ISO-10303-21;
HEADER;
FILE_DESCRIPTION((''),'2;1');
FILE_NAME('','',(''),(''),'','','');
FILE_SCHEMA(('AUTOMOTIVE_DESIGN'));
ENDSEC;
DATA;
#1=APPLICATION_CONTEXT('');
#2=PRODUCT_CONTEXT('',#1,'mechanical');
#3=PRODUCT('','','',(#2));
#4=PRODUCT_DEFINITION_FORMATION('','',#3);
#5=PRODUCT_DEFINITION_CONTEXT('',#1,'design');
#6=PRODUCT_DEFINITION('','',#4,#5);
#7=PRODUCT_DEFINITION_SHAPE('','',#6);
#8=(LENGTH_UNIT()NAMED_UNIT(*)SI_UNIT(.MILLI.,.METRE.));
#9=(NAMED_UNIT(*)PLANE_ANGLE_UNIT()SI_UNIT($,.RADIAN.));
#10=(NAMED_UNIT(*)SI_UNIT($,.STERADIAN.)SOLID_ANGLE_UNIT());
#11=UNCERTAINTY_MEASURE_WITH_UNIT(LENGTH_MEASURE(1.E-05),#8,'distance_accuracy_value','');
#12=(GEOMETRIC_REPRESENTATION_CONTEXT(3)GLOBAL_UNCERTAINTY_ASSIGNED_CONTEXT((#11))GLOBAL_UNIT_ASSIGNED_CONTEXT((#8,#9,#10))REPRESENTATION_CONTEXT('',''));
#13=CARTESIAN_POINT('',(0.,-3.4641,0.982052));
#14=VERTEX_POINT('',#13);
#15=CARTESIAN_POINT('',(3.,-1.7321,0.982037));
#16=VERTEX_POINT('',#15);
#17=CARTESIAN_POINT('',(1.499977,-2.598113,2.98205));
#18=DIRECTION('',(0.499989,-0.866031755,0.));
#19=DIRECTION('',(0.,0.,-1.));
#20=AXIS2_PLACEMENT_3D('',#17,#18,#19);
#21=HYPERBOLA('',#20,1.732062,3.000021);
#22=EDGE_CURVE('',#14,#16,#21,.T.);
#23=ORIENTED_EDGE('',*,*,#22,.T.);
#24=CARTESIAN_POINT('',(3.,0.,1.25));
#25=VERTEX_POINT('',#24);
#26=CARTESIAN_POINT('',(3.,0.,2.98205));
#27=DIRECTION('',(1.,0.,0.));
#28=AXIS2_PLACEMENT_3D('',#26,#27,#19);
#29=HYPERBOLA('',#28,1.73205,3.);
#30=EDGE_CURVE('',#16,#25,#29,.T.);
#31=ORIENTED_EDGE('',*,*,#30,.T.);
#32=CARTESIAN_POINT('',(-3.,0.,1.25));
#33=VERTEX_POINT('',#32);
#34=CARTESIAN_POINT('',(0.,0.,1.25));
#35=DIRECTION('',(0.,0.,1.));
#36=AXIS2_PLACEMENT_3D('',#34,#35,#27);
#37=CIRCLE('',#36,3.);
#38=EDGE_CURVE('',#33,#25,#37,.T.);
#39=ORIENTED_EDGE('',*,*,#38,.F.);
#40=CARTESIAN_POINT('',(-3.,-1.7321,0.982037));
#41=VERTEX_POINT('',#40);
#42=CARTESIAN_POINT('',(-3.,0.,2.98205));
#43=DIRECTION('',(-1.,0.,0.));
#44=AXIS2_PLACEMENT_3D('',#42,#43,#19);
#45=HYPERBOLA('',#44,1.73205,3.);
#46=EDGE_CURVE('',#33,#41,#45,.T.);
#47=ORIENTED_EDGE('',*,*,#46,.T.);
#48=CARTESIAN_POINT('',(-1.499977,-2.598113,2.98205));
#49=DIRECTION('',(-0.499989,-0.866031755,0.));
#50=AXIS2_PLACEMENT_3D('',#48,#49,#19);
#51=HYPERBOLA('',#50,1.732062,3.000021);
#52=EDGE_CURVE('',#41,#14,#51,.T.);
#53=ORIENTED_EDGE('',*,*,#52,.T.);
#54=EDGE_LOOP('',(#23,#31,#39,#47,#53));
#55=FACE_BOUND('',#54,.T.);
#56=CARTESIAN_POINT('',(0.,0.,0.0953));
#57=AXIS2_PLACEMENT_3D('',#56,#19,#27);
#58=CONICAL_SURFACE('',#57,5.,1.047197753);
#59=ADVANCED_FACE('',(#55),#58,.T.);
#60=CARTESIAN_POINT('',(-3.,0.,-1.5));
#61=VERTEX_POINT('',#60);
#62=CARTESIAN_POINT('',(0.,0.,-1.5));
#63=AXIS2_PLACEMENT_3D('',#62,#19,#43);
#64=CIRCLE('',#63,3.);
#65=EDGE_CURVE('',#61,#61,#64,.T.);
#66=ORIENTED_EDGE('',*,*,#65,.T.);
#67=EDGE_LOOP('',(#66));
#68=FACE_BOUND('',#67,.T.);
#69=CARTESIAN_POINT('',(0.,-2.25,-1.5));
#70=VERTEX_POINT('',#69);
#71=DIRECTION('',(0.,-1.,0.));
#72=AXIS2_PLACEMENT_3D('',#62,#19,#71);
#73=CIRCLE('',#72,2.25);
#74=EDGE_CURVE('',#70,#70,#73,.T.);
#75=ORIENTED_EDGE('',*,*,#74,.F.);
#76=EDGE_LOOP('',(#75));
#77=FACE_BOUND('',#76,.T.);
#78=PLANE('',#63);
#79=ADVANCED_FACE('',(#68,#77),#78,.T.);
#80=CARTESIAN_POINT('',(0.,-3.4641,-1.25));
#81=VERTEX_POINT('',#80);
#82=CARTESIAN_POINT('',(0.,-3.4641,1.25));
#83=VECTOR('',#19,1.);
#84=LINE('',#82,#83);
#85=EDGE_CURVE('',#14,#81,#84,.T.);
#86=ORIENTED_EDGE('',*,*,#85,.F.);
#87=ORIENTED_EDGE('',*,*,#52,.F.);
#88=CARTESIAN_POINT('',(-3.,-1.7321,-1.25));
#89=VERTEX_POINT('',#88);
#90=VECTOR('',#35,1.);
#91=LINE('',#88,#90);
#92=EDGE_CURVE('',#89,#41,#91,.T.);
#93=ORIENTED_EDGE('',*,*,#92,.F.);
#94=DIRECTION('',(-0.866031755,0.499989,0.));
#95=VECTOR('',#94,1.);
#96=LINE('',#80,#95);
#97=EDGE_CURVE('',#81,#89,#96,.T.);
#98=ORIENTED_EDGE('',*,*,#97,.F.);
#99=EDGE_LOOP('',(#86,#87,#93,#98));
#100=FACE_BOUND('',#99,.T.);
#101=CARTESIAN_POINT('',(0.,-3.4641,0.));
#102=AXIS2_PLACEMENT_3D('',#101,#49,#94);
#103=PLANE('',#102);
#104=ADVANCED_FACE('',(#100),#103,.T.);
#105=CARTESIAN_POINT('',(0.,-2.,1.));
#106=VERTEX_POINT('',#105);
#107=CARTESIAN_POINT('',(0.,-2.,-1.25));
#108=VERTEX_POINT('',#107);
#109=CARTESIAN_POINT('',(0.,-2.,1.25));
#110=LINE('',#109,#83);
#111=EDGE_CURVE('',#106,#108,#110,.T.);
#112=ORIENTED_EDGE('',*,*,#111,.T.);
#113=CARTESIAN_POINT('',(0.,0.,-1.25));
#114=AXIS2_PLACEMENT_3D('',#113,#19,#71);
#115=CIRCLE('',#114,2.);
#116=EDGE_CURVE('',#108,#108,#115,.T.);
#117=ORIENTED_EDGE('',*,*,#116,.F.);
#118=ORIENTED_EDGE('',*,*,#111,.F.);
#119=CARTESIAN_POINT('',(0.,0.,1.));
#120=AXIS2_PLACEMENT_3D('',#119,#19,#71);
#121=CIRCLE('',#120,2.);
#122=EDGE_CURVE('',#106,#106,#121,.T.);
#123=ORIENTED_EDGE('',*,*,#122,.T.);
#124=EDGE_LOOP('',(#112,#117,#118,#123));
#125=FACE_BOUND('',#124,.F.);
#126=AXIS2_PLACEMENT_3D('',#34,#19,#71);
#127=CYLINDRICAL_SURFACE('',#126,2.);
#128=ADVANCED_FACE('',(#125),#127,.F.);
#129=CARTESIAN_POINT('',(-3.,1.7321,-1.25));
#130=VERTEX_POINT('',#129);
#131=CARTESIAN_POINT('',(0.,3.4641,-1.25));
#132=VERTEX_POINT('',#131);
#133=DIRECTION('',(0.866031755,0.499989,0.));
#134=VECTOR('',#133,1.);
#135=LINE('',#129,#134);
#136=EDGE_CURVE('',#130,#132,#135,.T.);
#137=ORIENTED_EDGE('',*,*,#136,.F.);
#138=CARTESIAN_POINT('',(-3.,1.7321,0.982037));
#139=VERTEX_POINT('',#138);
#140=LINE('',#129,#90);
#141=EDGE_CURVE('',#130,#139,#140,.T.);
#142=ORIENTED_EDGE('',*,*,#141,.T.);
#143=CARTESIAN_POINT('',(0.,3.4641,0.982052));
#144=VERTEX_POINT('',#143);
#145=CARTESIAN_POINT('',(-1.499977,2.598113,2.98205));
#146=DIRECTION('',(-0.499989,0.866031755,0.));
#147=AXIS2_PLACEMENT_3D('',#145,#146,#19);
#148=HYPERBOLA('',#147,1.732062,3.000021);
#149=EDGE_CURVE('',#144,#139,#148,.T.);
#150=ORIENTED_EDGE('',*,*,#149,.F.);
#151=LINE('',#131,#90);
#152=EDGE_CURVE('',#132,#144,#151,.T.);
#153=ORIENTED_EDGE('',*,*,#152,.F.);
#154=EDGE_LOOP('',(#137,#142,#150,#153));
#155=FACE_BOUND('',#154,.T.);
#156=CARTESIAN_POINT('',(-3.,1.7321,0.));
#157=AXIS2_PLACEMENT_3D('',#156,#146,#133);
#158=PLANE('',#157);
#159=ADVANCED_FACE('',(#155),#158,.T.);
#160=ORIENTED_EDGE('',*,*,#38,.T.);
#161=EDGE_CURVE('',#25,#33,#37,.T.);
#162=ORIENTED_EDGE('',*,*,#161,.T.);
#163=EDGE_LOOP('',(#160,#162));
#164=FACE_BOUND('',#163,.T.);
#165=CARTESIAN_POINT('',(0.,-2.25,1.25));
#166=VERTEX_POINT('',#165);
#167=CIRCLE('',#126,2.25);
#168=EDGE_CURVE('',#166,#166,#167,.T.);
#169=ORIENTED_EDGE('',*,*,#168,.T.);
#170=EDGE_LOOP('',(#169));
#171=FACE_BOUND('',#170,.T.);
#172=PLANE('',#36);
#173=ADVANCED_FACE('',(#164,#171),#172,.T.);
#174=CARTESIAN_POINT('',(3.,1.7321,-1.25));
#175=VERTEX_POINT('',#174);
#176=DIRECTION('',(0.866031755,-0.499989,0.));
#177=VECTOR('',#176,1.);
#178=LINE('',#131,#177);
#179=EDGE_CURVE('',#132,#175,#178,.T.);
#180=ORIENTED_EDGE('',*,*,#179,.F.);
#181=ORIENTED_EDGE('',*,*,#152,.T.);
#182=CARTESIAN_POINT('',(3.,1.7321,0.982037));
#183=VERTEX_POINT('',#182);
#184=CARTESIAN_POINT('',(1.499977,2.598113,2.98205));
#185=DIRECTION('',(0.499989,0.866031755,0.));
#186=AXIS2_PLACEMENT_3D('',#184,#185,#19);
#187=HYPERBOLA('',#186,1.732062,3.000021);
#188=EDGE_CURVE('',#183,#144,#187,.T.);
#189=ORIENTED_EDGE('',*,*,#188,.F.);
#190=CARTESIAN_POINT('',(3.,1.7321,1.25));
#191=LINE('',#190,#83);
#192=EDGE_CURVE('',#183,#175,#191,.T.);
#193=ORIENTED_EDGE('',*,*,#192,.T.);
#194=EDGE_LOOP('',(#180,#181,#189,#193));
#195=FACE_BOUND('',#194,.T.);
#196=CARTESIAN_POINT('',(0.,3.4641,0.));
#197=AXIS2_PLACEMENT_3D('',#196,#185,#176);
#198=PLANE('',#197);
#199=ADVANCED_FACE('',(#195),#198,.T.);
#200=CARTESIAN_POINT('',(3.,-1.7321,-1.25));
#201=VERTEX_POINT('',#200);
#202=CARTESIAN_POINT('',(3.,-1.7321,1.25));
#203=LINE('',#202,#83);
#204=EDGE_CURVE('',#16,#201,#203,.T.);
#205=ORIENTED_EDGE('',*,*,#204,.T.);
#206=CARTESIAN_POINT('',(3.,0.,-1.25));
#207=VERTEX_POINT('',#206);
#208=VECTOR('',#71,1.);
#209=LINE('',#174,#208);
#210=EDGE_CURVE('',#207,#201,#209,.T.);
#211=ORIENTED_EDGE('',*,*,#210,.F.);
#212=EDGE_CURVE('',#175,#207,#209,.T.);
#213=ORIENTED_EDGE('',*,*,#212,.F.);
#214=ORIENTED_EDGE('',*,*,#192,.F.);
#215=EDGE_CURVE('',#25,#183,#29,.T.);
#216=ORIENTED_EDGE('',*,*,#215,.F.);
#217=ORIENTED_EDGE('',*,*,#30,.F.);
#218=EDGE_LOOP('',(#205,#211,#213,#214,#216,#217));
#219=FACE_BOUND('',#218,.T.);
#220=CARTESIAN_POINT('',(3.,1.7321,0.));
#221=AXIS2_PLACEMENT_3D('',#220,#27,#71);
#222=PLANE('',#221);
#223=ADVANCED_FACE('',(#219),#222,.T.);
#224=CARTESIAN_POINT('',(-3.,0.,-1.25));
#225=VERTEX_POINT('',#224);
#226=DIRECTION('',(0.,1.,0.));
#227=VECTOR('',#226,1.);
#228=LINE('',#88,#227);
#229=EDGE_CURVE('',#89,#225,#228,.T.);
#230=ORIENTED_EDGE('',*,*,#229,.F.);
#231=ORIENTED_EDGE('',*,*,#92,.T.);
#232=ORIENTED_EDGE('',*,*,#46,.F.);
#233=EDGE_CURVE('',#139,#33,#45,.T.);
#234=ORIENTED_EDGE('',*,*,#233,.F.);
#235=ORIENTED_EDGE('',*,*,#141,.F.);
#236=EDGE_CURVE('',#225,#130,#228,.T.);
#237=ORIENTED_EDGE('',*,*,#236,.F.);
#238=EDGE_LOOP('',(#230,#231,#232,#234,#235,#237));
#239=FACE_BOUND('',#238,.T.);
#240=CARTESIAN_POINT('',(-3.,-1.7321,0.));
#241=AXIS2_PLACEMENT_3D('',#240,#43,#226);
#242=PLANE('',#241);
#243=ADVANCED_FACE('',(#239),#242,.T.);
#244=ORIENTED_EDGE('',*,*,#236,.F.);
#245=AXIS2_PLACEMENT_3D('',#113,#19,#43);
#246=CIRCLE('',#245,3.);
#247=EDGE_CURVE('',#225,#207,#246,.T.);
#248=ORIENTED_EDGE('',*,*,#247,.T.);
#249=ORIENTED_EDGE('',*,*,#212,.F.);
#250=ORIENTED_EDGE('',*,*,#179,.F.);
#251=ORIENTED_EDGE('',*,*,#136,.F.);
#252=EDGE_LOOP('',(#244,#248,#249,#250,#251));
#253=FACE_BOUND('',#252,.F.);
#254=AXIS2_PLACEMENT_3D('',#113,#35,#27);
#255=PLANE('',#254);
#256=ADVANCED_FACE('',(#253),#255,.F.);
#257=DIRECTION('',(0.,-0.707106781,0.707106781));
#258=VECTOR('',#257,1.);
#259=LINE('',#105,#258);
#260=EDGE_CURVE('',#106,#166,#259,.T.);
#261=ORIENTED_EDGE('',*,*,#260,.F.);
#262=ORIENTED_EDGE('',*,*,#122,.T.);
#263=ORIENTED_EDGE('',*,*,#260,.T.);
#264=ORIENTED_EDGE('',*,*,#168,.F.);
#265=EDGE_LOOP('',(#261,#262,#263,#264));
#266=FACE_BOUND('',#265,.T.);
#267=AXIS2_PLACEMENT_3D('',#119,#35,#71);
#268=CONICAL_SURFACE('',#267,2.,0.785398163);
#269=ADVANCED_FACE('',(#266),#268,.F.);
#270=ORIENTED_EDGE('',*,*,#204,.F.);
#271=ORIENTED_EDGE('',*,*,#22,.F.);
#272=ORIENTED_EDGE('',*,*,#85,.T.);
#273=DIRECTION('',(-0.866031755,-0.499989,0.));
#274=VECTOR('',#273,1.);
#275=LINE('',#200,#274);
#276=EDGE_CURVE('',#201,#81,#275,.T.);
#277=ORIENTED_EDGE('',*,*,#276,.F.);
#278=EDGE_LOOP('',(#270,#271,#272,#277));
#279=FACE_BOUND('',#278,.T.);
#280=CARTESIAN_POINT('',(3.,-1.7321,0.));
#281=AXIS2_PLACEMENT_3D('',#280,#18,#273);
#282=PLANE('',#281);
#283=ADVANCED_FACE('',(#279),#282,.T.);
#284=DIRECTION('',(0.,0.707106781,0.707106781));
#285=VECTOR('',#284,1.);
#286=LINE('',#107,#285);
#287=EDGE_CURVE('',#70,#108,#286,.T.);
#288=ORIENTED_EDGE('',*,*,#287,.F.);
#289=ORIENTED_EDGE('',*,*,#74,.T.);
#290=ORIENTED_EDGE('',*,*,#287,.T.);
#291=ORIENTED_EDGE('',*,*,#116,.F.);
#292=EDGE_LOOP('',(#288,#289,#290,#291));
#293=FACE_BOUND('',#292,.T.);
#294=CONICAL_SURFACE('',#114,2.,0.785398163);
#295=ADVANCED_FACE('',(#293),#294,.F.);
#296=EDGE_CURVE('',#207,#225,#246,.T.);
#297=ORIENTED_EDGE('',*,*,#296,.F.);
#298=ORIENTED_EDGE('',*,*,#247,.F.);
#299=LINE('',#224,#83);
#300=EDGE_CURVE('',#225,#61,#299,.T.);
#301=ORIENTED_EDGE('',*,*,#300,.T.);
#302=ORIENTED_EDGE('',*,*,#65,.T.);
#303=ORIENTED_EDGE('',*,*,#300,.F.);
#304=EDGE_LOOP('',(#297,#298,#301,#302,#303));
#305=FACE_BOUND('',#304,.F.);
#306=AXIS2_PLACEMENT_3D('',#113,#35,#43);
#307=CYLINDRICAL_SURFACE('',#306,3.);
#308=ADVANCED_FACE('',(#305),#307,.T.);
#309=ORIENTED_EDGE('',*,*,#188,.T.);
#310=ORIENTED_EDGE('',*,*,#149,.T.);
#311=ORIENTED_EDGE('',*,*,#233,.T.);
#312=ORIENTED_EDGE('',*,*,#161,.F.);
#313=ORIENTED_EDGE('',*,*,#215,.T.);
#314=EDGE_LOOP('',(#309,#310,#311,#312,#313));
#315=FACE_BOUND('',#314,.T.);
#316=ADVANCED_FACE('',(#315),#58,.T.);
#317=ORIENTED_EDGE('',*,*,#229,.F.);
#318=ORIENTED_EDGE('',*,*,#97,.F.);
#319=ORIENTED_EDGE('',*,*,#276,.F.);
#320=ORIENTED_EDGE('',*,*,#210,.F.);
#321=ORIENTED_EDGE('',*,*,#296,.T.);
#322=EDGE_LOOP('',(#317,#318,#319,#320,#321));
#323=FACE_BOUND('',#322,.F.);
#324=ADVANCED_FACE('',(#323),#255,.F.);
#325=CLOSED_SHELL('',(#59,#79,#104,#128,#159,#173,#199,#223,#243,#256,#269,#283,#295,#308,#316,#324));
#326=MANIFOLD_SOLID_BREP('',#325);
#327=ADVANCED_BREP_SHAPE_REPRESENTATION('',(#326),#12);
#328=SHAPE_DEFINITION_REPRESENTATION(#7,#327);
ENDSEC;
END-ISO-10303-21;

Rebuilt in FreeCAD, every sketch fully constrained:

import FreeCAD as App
import Part
import Sketcher
Q = App.Units.Quantity


def edges_at(feature, points):
    """Names of the edges that pass closest to the given points."""
    edges = feature.Shape.Edges
    near = lambda p: min(range(len(edges)), key=lambda i: edges[i].distToShape(Part.Vertex(*p))[0])
    return sorted({f"Edge{near(p) + 1}" for p in points})

doc = App.newDocument("Part")
params = doc.addObject("Spreadsheet::Sheet", "Params")
for row, (alias, value) in enumerate([
    ("pad1_length", "2.5 mm"),
    ("sketch2_width", "2 mm"),
    ("groove_angle", "360 deg"),
    ("sketch3_diameter", "6 mm"),
    ("pad2_length", "0.25 mm"),
    ("sketch4_diameter", "4 mm"),
    ("hole_diameter", "4 mm"),
    ("chamfer_size", "0.25 mm"),
], start=1):
    params.set(f"A{row}", alias)
    params.set(f"B{row}", "=" + value)
    params.setAlias(f"B{row}", alias)

body = doc.addObject("PartDesign::Body", "Body")

# Sketch on XY plane
sketch1 = body.newObject("Sketcher::SketchObject", "Sketch")
sketch1.AttachmentSupport = (doc.getObject("XY_Plane"), [""])
sketch1.MapMode = "FlatFace"
sketch1.addGeometry([
    Part.LineSegment(App.Vector(3, 1.7, 0), App.Vector(0, 3.5, 0)),  # 0
    Part.LineSegment(App.Vector(0, 3.5, 0), App.Vector(-3, 1.7, 0)),  # 1
    Part.LineSegment(App.Vector(-3, 1.7, 0), App.Vector(-3, -1.7, 0)),  # 2
    Part.LineSegment(App.Vector(-3, -1.7, 0), App.Vector(0, -3.5, 0)),  # 3
    Part.LineSegment(App.Vector(0, -3.5, 0), App.Vector(3, -1.7, 0)),  # 4
    Part.LineSegment(App.Vector(3, -1.7, 0), App.Vector(3, 1.7, 0)),  # 5
], False)
sketch1.addConstraint([
    Sketcher.Constraint("Coincident", 0, 2, 1, 1),
    Sketcher.Constraint("Coincident", 1, 2, 2, 1),
    Sketcher.Constraint("Coincident", 2, 2, 3, 1),
    Sketcher.Constraint("Coincident", 3, 2, 4, 1),
    Sketcher.Constraint("Coincident", 4, 2, 5, 1),
    Sketcher.Constraint("Coincident", 5, 2, 0, 1),
    Sketcher.Constraint("Vertical", 2),
    Sketcher.Constraint("Vertical", 5),
    Sketcher.Constraint("Symmetric", 0, 2, 3, 2, -1, 1),
    Sketcher.Constraint("Symmetric", 1, 2, 4, 2, -1, 1),
    Sketcher.Constraint("PointOnObject", 0, 2, -2),
    Sketcher.Constraint("Parallel", 0, 3),
    Sketcher.Constraint("Horizontal", 2, 2, 4, 2),
    Sketcher.Constraint("DistanceX", 2, 2, 4, 2, Q("6 mm")),
    Sketcher.Constraint("Angle", 0, Q("150.0007 deg")),
    Sketcher.Constraint("DistanceY", 2, 2, 2, 1, Q("3.4642 mm")),
])
pad1 = body.newObject("PartDesign::Pad", "Pad")
pad1.Profile = sketch1
pad1.setExpression("Length", "Params.pad1_length")
pad1.Midplane = True

# Sketch on XZ plane
sketch2 = body.newObject("Sketcher::SketchObject", "Sketch001")
sketch2.AttachmentSupport = (doc.getObject("XZ_Plane"), [""])
sketch2.MapMode = "FlatFace"
sketch2.addGeometry([
    Part.LineSegment(App.Vector(5, 0.1, 0), App.Vector(3, 1.2, 0)),
    Part.LineSegment(App.Vector(3, 1.2, 0), App.Vector(5, 1.2, 0)),
    Part.LineSegment(App.Vector(5, 1.2, 0), App.Vector(5, 0.1, 0)),
], False)
sketch2.addConstraint([
    Sketcher.Constraint("Coincident", 0, 2, 1, 1),
    Sketcher.Constraint("Coincident", 1, 2, 2, 1),
    Sketcher.Constraint("Coincident", 2, 2, 0, 1),
    Sketcher.Constraint("Horizontal", 1),
    Sketcher.Constraint("Vertical", 2),
    Sketcher.Constraint("DistanceX", 1, 1, 1, 2, Q("2 mm")),
    Sketcher.Constraint("Angle", 0, Q("150 deg")),
    Sketcher.Constraint("DistanceX", -1, 1, 0, 2, Q("3 mm")),
    Sketcher.Constraint("DistanceY", -1, 1, 0, 2, Q("1.25 mm")),
])
sketch2.setExpression("Constraints[5]", "Params.sketch2_width")
groove = body.newObject("PartDesign::Groove", "Groove")
groove.Profile = sketch2
groove.ReferenceAxis = (sketch2, ["V_Axis"])
groove.setExpression("Angle", "Params.groove_angle")

# Sketch on XY plane
sketch3 = body.newObject("Sketcher::SketchObject", "Sketch002")
sketch3.AttachmentSupport = (doc.getObject("XY_Plane"), [""])
sketch3.MapMode = "FlatFace"
sketch3.AttachmentOffset = App.Placement(App.Vector(0, 0, -1.25), App.Rotation())
sketch3.addGeometry(Part.Circle(App.Vector(0, 0, 0), App.Vector(0, 0, 1), 3), False)
sketch3.addConstraint([
    Sketcher.Constraint("Coincident", 0, 3, -1, 1),
    Sketcher.Constraint("Diameter", 0, Q("6 mm")),
])
sketch3.setExpression("Constraints[1]", "Params.sketch3_diameter")
pad2 = body.newObject("PartDesign::Pad", "Pad001")
pad2.Profile = sketch3
pad2.setExpression("Length", "Params.pad2_length")
pad2.Reversed = True

# Sketch on XY plane
sketch4 = body.newObject("Sketcher::SketchObject", "Sketch003")
sketch4.AttachmentSupport = (doc.getObject("XY_Plane"), [""])
sketch4.MapMode = "FlatFace"
sketch4.AttachmentOffset = App.Placement(App.Vector(0, 0, 1.25), App.Rotation())
sketch4.addGeometry(Part.Circle(App.Vector(0, 0, 0), App.Vector(0, 0, 1), 2), False)
sketch4.addConstraint([
    Sketcher.Constraint("Coincident", 0, 3, -1, 1),
    Sketcher.Constraint("Diameter", 0, Q("4 mm")),
])
sketch4.setExpression("Constraints[1]", "Params.sketch4_diameter")
doc.recompute()
hole = body.newObject("PartDesign::Hole", "Hole")
hole.Profile = sketch4
hole.ThreadType = "None"
hole.setExpression("Diameter", "Params.hole_diameter")
hole.DepthType = "ThroughAll"
doc.recompute()

chamfer = body.newObject("PartDesign::Chamfer", "Chamfer")
chamfer.Base = (hole, edges_at(hole, [(0, 2, 1.25), (0, 2, -1.5)]))
chamfer.setExpression("Size", "Params.chamfer_size")

doc.recompute()
